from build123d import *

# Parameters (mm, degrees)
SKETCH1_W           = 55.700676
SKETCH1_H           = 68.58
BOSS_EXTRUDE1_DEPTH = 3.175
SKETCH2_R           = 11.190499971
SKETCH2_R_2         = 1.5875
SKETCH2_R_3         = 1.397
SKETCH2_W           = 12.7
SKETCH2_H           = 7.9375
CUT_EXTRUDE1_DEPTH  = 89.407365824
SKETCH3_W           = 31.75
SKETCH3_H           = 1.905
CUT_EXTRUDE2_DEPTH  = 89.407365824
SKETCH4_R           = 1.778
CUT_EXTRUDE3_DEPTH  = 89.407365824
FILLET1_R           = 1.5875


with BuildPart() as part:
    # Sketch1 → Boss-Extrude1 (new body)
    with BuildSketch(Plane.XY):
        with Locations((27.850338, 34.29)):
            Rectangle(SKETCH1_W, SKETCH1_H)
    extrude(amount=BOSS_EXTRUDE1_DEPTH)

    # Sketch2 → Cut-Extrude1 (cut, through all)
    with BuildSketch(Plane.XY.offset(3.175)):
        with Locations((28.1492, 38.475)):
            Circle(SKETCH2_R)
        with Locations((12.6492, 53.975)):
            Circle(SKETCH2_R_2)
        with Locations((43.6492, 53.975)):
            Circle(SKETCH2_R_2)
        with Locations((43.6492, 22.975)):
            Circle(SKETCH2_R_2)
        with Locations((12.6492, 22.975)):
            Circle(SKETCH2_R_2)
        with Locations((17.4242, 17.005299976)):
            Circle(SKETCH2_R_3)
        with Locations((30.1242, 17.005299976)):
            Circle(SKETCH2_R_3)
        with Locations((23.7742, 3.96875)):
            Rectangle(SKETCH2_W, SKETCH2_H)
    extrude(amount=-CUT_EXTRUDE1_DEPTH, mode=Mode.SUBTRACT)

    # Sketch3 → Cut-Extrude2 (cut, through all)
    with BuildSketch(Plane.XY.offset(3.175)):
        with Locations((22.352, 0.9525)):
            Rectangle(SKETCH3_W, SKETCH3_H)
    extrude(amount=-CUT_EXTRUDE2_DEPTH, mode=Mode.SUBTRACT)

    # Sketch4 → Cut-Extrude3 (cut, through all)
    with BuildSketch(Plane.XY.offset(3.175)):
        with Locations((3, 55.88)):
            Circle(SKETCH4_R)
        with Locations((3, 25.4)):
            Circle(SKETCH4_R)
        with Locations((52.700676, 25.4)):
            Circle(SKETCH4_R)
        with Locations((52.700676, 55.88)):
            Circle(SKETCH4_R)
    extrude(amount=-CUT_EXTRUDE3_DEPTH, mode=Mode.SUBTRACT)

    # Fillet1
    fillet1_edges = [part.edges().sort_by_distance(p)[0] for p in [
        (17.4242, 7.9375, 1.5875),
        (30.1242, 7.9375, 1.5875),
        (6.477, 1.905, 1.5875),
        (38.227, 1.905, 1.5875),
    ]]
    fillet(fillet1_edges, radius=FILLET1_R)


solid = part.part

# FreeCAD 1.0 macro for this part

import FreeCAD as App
import Part
import Sketcher
from FreeCAD import Vector
Q = App.Units.Quantity


def edges_at(feature, points):
    """Names of the edges that pass closest to the given points."""
    edges = feature.Shape.Edges
    near = lambda p: min(range(len(edges)), key=lambda i: edges[i].distToShape(Part.Vertex(*p))[0])
    return sorted({f"Edge{near(p) + 1}" for p in points})

doc = App.newDocument("Part")
params = doc.addObject("Spreadsheet::Sheet", "Params")
for row, (alias, value) in enumerate([
    ("sketch1_height", "2.7 in"),
    ("pad1_length", "0.125 in"),
    ("sketch2_diameter", "0.11 in"),
    ("sketch2_diameter2", "0.125 in"),
    ("sketch2_width", "0.5 in"),
    ("sketch2_height", "0.3125 in"),
    ("sketch3_width", "1.25 in"),
    ("sketch3_height", "0.075 in"),
    ("sketch4_diameter", "0.14 in"),
    ("fillet_radius", "0.0625 in"),
], start=1):
    params.set(f"A{row}", alias)
    params.set(f"B{row}", "=" + value)
    params.setAlias(f"B{row}", alias)

body = doc.addObject("PartDesign::Body", "Body")

# Sketch on XY plane
sketch1 = body.newObject("Sketcher::SketchObject", "Sketch")
sketch1.AttachmentSupport = (doc.getObject("XY_Plane"), [""])
sketch1.MapMode = "FlatFace"
sketch1.addGeometry(Part.LineSegment(Vector(0, 68.58, 0), Vector(0, 0, 0)), False)
sketch1.addGeometry(Part.LineSegment(Vector(0, 0, 0), Vector(55.700676, 0, 0)), False)
sketch1.addGeometry(Part.LineSegment(Vector(55.700676, 0, 0), Vector(55.700676, 68.58, 0)), False)
sketch1.addGeometry(Part.LineSegment(Vector(55.700676, 68.58, 0), Vector(0, 68.58, 0)), False)
sketch1.addConstraint(Sketcher.Constraint("Coincident", 0, 2, 1, 1))
sketch1.addConstraint(Sketcher.Constraint("Coincident", 1, 2, 2, 1))
sketch1.addConstraint(Sketcher.Constraint("Coincident", 2, 2, 3, 1))
sketch1.addConstraint(Sketcher.Constraint("Coincident", 3, 2, 0, 1))
sketch1.addConstraint(Sketcher.Constraint("Vertical", 0))
sketch1.addConstraint(Sketcher.Constraint("Horizontal", 1))
sketch1.addConstraint(Sketcher.Constraint("Vertical", 2))
sketch1.addConstraint(Sketcher.Constraint("Horizontal", 3))
sketch1.addConstraint(Sketcher.Constraint("Coincident", 0, 2, -1, 1))
sketch1.addConstraint(Sketcher.Constraint("DistanceY", 0, 2, 0, 1, Q("2.7 in")))
sketch1.addConstraint(Sketcher.Constraint("DistanceX", 1, 1, 1, 2, 55.700676))
sketch1.setExpression("Constraints[9]", "Params.sketch1_height")
pad1 = body.newObject("PartDesign::Pad", "Pad")
pad1.Profile = sketch1
pad1.setExpression("Length", "Params.pad1_length")

# Sketch on XY plane
sketch2 = body.newObject("Sketcher::SketchObject", "Sketch001")
sketch2.AttachmentSupport = (doc.getObject("XY_Plane"), [""])
sketch2.MapMode = "FlatFace"
sketch2.AttachmentOffset = App.Placement(Vector(0, 0, 0.125 * 25.4), App.Rotation())
sketch2.addGeometry(Part.Circle(Vector(28.1492, 38.475, 0), Vector(0, 0, 1), 11.1905), False)
sketch2.addGeometry(Part.Circle(Vector(12.6492, 53.975, 0), Vector(0, 0, 1), 1.5875), False)
sketch2.addGeometry(Part.Circle(Vector(43.6492, 53.975, 0), Vector(0, 0, 1), 1.5875), False)
sketch2.addGeometry(Part.Circle(Vector(43.6492, 22.975, 0), Vector(0, 0, 1), 1.5875), False)
sketch2.addGeometry(Part.Circle(Vector(12.6492, 22.975, 0), Vector(0, 0, 1), 1.5875), False)
sketch2.addGeometry(Part.Circle(Vector(17.4242, 17.0053, 0), Vector(0, 0, 1), 1.397), False)
sketch2.addGeometry(Part.Circle(Vector(30.1242, 17.0053, 0), Vector(0, 0, 1), 1.397), False)
sketch2.addGeometry(Part.LineSegment(Vector(17.4242, 7.9375, 0), Vector(17.4242, 0, 0)), False)
sketch2.addGeometry(Part.LineSegment(Vector(17.4242, 0, 0), Vector(30.1242, 0, 0)), False)
sketch2.addGeometry(Part.LineSegment(Vector(30.1242, 0, 0), Vector(30.1242, 7.9375, 0)), False)
sketch2.addGeometry(Part.LineSegment(Vector(30.1242, 7.9375, 0), Vector(17.4242, 7.9375, 0)), False)
sketch2.addConstraint(Sketcher.Constraint("Coincident", 7, 2, 8, 1))
sketch2.addConstraint(Sketcher.Constraint("Coincident", 8, 2, 9, 1))
sketch2.addConstraint(Sketcher.Constraint("Coincident", 9, 2, 10, 1))
sketch2.addConstraint(Sketcher.Constraint("Coincident", 10, 2, 7, 1))
sketch2.addConstraint(Sketcher.Constraint("Vertical", 7))
sketch2.addConstraint(Sketcher.Constraint("Horizontal", 8))
sketch2.addConstraint(Sketcher.Constraint("Vertical", 9))
sketch2.addConstraint(Sketcher.Constraint("Horizontal", 10))
sketch2.addConstraint(Sketcher.Constraint("Equal", 1, 2))
sketch2.addConstraint(Sketcher.Constraint("Equal", 2, 3))
sketch2.addConstraint(Sketcher.Constraint("Equal", 3, 4))
sketch2.addConstraint(Sketcher.Constraint("Equal", 5, 6))
sketch2.addConstraint(Sketcher.Constraint("PointOnObject", 7, 2, -1))
sketch2.addConstraint(Sketcher.Constraint("Horizontal", 1, 3, 2, 3))
sketch2.addConstraint(Sketcher.Constraint("Horizontal", 3, 3, 4, 3))
sketch2.addConstraint(Sketcher.Constraint("Horizontal", 5, 3, 6, 3))
sketch2.addConstraint(Sketcher.Constraint("Vertical", 2, 3, 3, 3))
sketch2.addConstraint(Sketcher.Constraint("Vertical", 1, 3, 4, 3))
sketch2.addConstraint(Sketcher.Constraint("Vertical", 5, 3, 7, 2))
sketch2.addConstraint(Sketcher.Constraint("Vertical", 6, 3, 8, 2))
sketch2.addConstraint(Sketcher.Constraint("Diameter", 5, Q("0.11 in")))
sketch2.addConstraint(Sketcher.Constraint("Diameter", 1, Q("0.125 in")))
sketch2.addConstraint(Sketcher.Constraint("DistanceX", 8, 1, 8, 2, Q("0.5 in")))
sketch2.addConstraint(Sketcher.Constraint("Diameter", 0, 22.381))
sketch2.addConstraint(Sketcher.Constraint("DistanceY", 7, 2, 7, 1, Q("0.3125 in")))
sketch2.addConstraint(Sketcher.Constraint("DistanceX", -1, 1, 1, 3, Q("0.498 in")))
sketch2.addConstraint(Sketcher.Constraint("DistanceY", -1, 1, 1, 3, Q("2.125 in")))
sketch2.addConstraint(Sketcher.Constraint("DistanceY", 9, 2, 6, 3, Q("0.357 in")))
sketch2.addConstraint(Sketcher.Constraint("DistanceX", -1, 1, 0, 3, 28.1492))
sketch2.addConstraint(Sketcher.Constraint("DistanceY", -1, 1, 0, 3, 38.475))
sketch2.addConstraint(Sketcher.Constraint("DistanceX", -1, 1, 2, 3, 43.6492))
sketch2.addConstraint(Sketcher.Constraint("DistanceY", -1, 1, 3, 3, 22.975))
sketch2.addConstraint(Sketcher.Constraint("DistanceX", -1, 1, 5, 3, 17.4242))
sketch2.setExpression("Constraints[20]", "Params.sketch2_diameter")
sketch2.setExpression("Constraints[21]", "Params.sketch2_diameter2")
sketch2.setExpression("Constraints[22]", "Params.sketch2_width")
sketch2.setExpression("Constraints[24]", "Params.sketch2_height")
pocket1 = body.newObject("PartDesign::Pocket", "Pocket")
pocket1.Profile = sketch2
pocket1.Type = "ThroughAll"

# Sketch on XY plane
sketch3 = body.newObject("Sketcher::SketchObject", "Sketch002")
sketch3.AttachmentSupport = (doc.getObject("XY_Plane"), [""])
sketch3.MapMode = "FlatFace"
sketch3.AttachmentOffset = App.Placement(Vector(0, 0, 0.125 * 25.4), App.Rotation())
sketch3.addGeometry(Part.LineSegment(Vector(6.477, 1.905, 0), Vector(6.477, 0, 0)), False)
sketch3.addGeometry(Part.LineSegment(Vector(6.477, 0, 0), Vector(38.227, 0, 0)), False)
sketch3.addGeometry(Part.LineSegment(Vector(38.227, 0, 0), Vector(38.227, 1.905, 0)), False)
sketch3.addGeometry(Part.LineSegment(Vector(38.227, 1.905, 0), Vector(6.477, 1.905, 0)), False)
sketch3.addConstraint(Sketcher.Constraint("Coincident", 0, 2, 1, 1))
sketch3.addConstraint(Sketcher.Constraint("Coincident", 1, 2, 2, 1))
sketch3.addConstraint(Sketcher.Constraint("Coincident", 2, 2, 3, 1))
sketch3.addConstraint(Sketcher.Constraint("Coincident", 3, 2, 0, 1))
sketch3.addConstraint(Sketcher.Constraint("Vertical", 0))
sketch3.addConstraint(Sketcher.Constraint("Horizontal", 1))
sketch3.addConstraint(Sketcher.Constraint("Vertical", 2))
sketch3.addConstraint(Sketcher.Constraint("Horizontal", 3))
sketch3.addConstraint(Sketcher.Constraint("PointOnObject", 0, 2, -1))
sketch3.addConstraint(Sketcher.Constraint("DistanceX", 1, 1, 1, 2, Q("1.25 in")))
sketch3.addConstraint(Sketcher.Constraint("DistanceY", 0, 2, 0, 1, Q("0.075 in")))
sketch3.addConstraint(Sketcher.Constraint("DistanceX", -1, 1, 0, 2, Q("0.255 in")))
sketch3.setExpression("Constraints[9]", "Params.sketch3_width")
sketch3.setExpression("Constraints[10]", "Params.sketch3_height")
pocket2 = body.newObject("PartDesign::Pocket", "Pocket001")
pocket2.Profile = sketch3
pocket2.Type = "ThroughAll"

# Sketch on XY plane
sketch4 = body.newObject("Sketcher::SketchObject", "Sketch003")
sketch4.AttachmentSupport = (doc.getObject("XY_Plane"), [""])
sketch4.MapMode = "FlatFace"
sketch4.AttachmentOffset = App.Placement(Vector(0, 0, 0.125 * 25.4), App.Rotation())
sketch4.addGeometry(Part.Circle(Vector(3, 55.88, 0), Vector(0, 0, 1), 1.778), False)
sketch4.addGeometry(Part.Circle(Vector(3, 25.4, 0), Vector(0, 0, 1), 1.778), False)
sketch4.addGeometry(Part.Circle(Vector(52.700676, 25.4, 0), Vector(0, 0, 1), 1.778), False)
sketch4.addGeometry(Part.Circle(Vector(52.700676, 55.88, 0), Vector(0, 0, 1), 1.778), False)
sketch4.addConstraint(Sketcher.Constraint("Equal", 0, 1))
sketch4.addConstraint(Sketcher.Constraint("Equal", 1, 2))
sketch4.addConstraint(Sketcher.Constraint("Equal", 2, 3))
sketch4.addConstraint(Sketcher.Constraint("Horizontal", 1, 3, 2, 3))
sketch4.addConstraint(Sketcher.Constraint("Horizontal", 0, 3, 3, 3))
sketch4.addConstraint(Sketcher.Constraint("Vertical", 0, 3, 1, 3))
sketch4.addConstraint(Sketcher.Constraint("Vertical", 2, 3, 3, 3))
sketch4.addConstraint(Sketcher.Constraint("Diameter", 0, Q("0.14 in")))
sketch4.addConstraint(Sketcher.Constraint("DistanceY", -1, 1, 1, 3, Q("1 in")))
sketch4.addConstraint(Sketcher.Constraint("DistanceY", -1, 1, 0, 3, Q("2.2 in")))
sketch4.addConstraint(Sketcher.Constraint("DistanceX", -1, 1, 0, 3, 3.0))
sketch4.addConstraint(Sketcher.Constraint("DistanceX", -1, 1, 2, 3, 52.700676))
sketch4.setExpression("Constraints[7]", "Params.sketch4_diameter")
pocket3 = body.newObject("PartDesign::Pocket", "Pocket002")
pocket3.Profile = sketch4
pocket3.Type = "ThroughAll"
doc.recompute()

fillet = body.newObject("PartDesign::Fillet", "Fillet")
fillet.Base = (pocket3, edges_at(pocket3, [
    (17.424, 7.938, 1.587),
    (30.124, 7.938, 1.587),
    (6.477, 1.905, 1.587),
    (38.227, 1.905, 1.587),
]))
fillet.setExpression("Radius", "Params.fillet_radius")

doc.recompute()
